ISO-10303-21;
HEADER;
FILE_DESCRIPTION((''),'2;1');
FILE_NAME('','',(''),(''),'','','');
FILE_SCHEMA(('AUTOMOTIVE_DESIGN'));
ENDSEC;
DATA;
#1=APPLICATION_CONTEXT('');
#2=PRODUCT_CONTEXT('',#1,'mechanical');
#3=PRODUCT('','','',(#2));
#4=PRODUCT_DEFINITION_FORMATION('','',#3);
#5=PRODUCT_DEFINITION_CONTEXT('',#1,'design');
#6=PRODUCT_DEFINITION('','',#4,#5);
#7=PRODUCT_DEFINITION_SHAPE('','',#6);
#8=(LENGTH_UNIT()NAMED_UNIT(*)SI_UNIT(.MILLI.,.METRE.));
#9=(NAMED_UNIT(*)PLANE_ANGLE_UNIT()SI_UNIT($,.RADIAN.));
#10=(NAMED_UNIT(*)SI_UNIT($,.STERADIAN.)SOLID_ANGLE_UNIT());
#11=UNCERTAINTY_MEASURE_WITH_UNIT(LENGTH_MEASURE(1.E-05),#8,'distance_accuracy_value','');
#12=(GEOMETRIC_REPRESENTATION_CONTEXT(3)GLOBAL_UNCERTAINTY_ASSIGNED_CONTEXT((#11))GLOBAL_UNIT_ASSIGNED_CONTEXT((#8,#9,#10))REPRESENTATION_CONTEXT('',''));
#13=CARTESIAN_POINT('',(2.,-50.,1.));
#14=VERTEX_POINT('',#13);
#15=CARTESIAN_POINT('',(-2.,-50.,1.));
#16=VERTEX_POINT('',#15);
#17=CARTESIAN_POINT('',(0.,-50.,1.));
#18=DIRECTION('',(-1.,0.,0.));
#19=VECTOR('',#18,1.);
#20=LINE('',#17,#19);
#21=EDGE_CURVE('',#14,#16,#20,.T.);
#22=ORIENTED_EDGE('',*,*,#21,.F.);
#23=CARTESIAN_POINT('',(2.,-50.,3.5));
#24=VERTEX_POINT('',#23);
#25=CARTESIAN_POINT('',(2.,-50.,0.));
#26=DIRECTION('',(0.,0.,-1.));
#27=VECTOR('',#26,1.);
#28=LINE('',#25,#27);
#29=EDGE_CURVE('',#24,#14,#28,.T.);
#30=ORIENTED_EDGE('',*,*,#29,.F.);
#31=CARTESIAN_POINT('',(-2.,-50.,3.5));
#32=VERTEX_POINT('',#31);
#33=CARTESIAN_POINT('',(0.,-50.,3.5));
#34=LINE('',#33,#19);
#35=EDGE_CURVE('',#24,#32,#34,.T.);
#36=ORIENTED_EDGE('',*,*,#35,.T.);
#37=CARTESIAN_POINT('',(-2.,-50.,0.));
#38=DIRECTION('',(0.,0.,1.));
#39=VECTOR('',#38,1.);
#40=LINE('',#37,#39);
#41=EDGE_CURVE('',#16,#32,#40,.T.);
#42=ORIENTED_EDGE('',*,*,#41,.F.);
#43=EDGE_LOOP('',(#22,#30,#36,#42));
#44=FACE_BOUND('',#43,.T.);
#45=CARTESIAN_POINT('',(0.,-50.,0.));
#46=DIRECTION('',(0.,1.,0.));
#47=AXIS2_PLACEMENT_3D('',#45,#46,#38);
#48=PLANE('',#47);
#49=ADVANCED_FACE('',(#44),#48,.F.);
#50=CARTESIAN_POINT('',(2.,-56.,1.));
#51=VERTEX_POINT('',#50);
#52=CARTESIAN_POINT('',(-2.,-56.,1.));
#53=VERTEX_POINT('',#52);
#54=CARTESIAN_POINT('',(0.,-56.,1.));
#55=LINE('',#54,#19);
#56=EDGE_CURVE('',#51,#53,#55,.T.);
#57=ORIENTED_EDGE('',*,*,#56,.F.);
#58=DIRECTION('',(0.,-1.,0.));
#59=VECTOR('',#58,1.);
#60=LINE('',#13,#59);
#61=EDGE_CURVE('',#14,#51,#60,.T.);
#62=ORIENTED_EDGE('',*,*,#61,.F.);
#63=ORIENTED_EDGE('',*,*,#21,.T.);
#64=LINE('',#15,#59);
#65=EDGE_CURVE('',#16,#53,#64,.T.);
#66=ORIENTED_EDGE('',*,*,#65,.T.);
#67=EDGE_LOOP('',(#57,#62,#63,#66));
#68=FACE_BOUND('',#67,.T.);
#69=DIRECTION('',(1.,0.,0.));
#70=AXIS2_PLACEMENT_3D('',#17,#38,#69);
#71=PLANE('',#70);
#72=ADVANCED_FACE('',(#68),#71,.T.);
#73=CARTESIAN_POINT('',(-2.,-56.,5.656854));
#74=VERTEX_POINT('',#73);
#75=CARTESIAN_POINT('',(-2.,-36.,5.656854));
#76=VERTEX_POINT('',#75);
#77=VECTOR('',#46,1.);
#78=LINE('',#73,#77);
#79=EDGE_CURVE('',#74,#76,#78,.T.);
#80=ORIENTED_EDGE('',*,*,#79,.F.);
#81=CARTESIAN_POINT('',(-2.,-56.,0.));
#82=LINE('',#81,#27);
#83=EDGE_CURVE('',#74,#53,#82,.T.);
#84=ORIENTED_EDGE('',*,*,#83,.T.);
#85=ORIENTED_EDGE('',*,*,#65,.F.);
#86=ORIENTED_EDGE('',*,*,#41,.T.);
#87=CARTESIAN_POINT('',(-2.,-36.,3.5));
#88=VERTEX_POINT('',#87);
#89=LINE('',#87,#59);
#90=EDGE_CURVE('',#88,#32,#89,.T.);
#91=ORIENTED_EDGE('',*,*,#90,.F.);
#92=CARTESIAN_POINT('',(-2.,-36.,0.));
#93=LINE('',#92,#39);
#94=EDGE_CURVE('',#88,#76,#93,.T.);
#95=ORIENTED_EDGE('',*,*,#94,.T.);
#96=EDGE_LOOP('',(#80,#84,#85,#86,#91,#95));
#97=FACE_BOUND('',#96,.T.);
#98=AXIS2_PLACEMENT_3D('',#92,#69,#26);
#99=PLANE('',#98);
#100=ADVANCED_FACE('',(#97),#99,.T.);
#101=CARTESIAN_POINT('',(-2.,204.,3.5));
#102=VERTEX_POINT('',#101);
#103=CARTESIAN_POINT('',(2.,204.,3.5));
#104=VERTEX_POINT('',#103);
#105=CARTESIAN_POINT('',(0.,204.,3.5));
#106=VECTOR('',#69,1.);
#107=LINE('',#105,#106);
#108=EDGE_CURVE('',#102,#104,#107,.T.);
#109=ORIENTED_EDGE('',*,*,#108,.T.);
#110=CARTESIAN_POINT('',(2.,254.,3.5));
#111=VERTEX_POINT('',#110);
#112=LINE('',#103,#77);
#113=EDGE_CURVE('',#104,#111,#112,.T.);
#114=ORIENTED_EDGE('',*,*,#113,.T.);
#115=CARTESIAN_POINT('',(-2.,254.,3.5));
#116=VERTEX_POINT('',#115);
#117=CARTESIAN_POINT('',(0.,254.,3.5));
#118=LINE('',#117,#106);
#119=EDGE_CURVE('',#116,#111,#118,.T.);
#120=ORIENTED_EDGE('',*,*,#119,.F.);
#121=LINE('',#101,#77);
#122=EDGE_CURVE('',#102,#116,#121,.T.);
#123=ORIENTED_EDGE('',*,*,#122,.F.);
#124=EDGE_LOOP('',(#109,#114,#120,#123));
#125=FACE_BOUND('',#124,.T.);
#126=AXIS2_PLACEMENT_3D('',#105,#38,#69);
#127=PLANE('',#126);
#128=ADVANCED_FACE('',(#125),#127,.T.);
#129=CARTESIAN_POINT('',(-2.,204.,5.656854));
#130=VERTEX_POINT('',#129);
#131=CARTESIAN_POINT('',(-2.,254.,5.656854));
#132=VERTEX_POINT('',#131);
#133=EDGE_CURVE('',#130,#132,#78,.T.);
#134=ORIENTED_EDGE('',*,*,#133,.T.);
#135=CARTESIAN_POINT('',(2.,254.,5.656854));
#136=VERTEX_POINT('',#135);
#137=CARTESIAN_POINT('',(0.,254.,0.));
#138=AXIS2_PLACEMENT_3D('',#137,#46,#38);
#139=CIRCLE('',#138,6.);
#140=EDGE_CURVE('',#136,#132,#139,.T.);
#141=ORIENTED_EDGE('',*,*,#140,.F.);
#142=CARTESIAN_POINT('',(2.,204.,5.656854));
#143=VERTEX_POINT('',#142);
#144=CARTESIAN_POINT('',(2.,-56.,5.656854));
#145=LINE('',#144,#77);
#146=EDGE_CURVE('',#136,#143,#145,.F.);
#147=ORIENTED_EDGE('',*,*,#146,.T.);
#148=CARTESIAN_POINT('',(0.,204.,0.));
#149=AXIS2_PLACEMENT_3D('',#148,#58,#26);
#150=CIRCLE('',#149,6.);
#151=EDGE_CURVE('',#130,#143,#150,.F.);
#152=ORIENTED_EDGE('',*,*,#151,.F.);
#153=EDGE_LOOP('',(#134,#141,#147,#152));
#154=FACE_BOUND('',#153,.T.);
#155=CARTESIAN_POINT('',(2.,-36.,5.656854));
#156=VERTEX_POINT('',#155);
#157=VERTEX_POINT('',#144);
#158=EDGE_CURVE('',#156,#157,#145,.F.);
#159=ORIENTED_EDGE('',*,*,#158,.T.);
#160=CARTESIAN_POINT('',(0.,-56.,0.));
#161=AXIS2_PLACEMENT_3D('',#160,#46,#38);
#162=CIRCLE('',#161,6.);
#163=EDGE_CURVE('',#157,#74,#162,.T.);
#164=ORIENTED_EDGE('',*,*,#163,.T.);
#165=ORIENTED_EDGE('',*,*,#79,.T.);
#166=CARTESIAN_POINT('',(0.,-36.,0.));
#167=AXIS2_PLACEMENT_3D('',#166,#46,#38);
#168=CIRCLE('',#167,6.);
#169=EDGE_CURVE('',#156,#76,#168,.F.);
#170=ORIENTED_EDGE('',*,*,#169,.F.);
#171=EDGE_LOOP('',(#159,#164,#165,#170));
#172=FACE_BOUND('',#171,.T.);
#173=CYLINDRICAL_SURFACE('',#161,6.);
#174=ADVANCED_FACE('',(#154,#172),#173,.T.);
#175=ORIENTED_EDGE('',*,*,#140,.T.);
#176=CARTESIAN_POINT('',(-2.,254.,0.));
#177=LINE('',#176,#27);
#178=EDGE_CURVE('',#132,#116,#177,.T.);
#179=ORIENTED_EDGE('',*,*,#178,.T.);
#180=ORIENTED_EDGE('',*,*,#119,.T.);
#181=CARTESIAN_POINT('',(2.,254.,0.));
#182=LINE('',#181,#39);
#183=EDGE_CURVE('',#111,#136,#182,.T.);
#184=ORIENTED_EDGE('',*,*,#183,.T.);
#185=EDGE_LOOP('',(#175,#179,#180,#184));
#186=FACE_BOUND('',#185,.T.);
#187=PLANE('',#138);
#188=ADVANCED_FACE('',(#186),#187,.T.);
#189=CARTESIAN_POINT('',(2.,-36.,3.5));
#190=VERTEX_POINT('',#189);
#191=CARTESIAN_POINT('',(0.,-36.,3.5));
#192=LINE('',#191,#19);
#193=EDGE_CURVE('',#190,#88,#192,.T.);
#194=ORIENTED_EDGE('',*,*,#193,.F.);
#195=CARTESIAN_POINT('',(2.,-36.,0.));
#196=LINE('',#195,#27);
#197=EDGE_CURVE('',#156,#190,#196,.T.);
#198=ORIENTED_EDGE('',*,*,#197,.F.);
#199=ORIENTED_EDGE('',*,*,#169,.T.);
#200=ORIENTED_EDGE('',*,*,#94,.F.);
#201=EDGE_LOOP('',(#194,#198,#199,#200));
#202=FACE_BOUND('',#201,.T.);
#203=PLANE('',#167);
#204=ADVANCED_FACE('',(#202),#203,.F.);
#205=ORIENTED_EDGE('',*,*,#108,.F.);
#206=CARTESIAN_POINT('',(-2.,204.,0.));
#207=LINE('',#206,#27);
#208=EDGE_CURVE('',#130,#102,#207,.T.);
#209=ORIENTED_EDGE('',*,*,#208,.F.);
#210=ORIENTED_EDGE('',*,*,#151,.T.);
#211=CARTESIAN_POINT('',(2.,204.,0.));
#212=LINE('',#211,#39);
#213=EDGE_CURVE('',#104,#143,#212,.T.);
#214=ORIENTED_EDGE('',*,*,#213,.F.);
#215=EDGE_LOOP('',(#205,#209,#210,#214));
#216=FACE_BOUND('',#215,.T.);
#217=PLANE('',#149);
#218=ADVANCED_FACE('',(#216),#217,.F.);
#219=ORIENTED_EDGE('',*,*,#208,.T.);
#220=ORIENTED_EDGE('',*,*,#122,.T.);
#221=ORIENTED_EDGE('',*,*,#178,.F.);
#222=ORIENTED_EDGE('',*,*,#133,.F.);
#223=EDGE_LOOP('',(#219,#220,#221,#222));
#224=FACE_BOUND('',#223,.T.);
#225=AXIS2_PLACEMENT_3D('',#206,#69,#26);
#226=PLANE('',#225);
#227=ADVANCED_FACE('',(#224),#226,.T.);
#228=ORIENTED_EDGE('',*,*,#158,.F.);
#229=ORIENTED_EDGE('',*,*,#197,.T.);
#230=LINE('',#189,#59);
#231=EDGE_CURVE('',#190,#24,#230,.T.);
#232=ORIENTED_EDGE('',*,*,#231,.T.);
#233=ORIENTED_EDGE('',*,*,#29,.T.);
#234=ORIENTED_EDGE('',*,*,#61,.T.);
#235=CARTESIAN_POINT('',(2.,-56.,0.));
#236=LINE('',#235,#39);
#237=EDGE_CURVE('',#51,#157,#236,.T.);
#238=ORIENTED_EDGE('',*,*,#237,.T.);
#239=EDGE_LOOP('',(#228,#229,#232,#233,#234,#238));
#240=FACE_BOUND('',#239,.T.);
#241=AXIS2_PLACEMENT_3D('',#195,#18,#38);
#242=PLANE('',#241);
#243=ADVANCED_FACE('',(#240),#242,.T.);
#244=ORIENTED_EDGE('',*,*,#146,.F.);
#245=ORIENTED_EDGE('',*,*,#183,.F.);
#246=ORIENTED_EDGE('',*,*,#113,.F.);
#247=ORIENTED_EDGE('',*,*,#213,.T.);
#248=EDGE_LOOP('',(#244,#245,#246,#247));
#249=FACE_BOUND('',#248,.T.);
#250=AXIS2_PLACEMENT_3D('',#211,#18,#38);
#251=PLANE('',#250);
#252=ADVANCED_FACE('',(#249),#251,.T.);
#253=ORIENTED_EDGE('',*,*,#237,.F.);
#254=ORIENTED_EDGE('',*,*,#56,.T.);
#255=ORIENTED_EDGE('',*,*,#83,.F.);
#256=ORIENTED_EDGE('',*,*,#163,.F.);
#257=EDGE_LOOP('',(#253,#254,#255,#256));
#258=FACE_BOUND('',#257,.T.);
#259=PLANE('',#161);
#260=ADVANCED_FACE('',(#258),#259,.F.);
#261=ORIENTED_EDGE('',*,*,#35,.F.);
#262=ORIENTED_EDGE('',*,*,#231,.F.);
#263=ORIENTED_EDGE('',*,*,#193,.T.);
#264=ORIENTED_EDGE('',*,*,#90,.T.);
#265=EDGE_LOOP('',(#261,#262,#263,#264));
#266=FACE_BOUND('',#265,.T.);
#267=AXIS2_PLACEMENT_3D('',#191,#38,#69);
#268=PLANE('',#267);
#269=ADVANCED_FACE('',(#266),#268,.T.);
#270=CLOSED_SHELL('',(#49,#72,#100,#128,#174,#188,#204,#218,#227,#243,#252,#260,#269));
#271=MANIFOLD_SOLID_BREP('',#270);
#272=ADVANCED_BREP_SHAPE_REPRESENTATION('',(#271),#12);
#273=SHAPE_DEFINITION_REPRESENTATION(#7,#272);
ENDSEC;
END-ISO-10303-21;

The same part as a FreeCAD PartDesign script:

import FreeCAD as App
import Part
import Sketcher


def add_polygon(sketch, points):
    """Adds a closed chain of lines whose ends are joined by coincident constraints."""
    first, n = sketch.GeometryCount, len(points)
    for a, b in zip(points, points[1:] + points[:1]):
        sketch.addGeometry(Part.LineSegment(App.Vector(*a, 0), App.Vector(*b, 0)), False)
    for i in range(n):
        sketch.addConstraint(Sketcher.Constraint("Coincident", first + i, 2, first + (i + 1) % n, 1))

doc = App.newDocument("Part")
params = doc.addObject("Spreadsheet::Sheet", "Params")
for row, (alias, value) in enumerate([
    ("sketch1_diameter", "12 mm"),
    ("pad1_length", "254 mm"),
    ("pad1_length2", "56 mm"),
    ("sketch2_width", "4 mm"),
    ("sketch2_height", "5 mm"),
    ("pocket1_length", "20 mm"),
    ("pocket1_length2", "0.0001 mm"),
    ("sketch3_width", "4 mm"),
    ("sketch3_height", "5 mm"),
    ("pocket2_length", "50 mm"),
    ("sketch4_width", "4 mm"),
    ("sketch4_height", "10 mm"),
    ("pocket3_length", "6 mm"),
], start=1):
    params.set(f"A{row}", alias)
    params.set(f"B{row}", "=" + value)
    params.setAlias(f"B{row}", alias)

body = doc.addObject("PartDesign::Body", "Body")

sketch1 = body.newObject("Sketcher::SketchObject", "Sketch")
sketch1.AttachmentSupport = (doc.getObject("XZ_Plane"), [""])
sketch1.MapMode = "FlatFace"
sketch1.addGeometry(Part.Circle(App.Vector(0, 0, 0), App.Vector(0, 0, 1), 6), False)
sketch1.addConstraint(Sketcher.Constraint("Coincident", 0, 3, -1, 1))
sketch1.addConstraint(Sketcher.Constraint("Diameter", 0, 12.0))
sketch1.setExpression("Constraints[1]", "Params.sketch1_diameter")
pad1 = body.newObject("PartDesign::Pad", "Pad")
pad1.Profile = sketch1
pad1.Type = "TwoLengths"
pad1.setExpression("Length", "Params.pad1_length")
pad1.setExpression("Length2", "Params.pad1_length2")
pad1.Reversed = True

sketch2 = body.newObject("Sketcher::SketchObject", "Sketch001")
sketch2.AttachmentSupport = (doc.getObject("XZ_Plane"), [""])
sketch2.MapMode = "FlatFace"
sketch2.AttachmentOffset = App.Placement(App.Vector(0, 0, 56), App.Rotation())
add_polygon(sketch2, [(-2, 3.5), (-2, 8.5), (2, 8.5), (2, 3.5)])
sketch2.addConstraint(Sketcher.Constraint("Vertical", 0))
sketch2.addConstraint(Sketcher.Constraint("Horizontal", 1))
sketch2.addConstraint(Sketcher.Constraint("Vertical", 2))
sketch2.addConstraint(Sketcher.Constraint("Horizontal", 3))
sketch2.addConstraint(Sketcher.Constraint("DistanceX", 1, 1, 1, 2, 4.0))
sketch2.addConstraint(Sketcher.Constraint("DistanceY", 0, 1, 0, 2, 5.0))
sketch2.addConstraint(Sketcher.Constraint("DistanceX", 0, 2, -1, 1, 2.0))
sketch2.addConstraint(Sketcher.Constraint("DistanceY", -1, 1, 0, 2, 8.5))
sketch2.setExpression("Constraints[8]", "Params.sketch2_width")
sketch2.setExpression("Constraints[9]", "Params.sketch2_height")
pocket1 = body.newObject("PartDesign::Pocket", "Pocket")
pocket1.Profile = sketch2
pocket1.Type = "TwoLengths"
pocket1.setExpression("Length", "Params.pocket1_length")
pocket1.setExpression("Length2", "Params.pocket1_length2")

sketch3 = body.newObject("Sketcher::SketchObject", "Sketch002")
sketch3.AttachmentSupport = (doc.getObject("XZ_Plane"), [""])
sketch3.MapMode = "FlatFace"
sketch3.AttachmentOffset = App.Placement(App.Vector(0, 0, -254), App.Rotation())
add_polygon(sketch3, [(-2, 3.5), (-2, 8.5), (2, 8.5), (2, 3.5)])
sketch3.addConstraint(Sketcher.Constraint("Vertical", 0))
sketch3.addConstraint(Sketcher.Constraint("Horizontal", 1))
sketch3.addConstraint(Sketcher.Constraint("Vertical", 2))
sketch3.addConstraint(Sketcher.Constraint("Horizontal", 3))
sketch3.addConstraint(Sketcher.Constraint("DistanceX", 1, 1, 1, 2, 4.0))
sketch3.addConstraint(Sketcher.Constraint("DistanceY", 0, 1, 0, 2, 5.0))
sketch3.addConstraint(Sketcher.Constraint("DistanceX", 0, 2, -1, 1, 2.0))
sketch3.addConstraint(Sketcher.Constraint("DistanceY", -1, 1, 0, 2, 8.5))
sketch3.setExpression("Constraints[8]", "Params.sketch3_width")
sketch3.setExpression("Constraints[9]", "Params.sketch3_height")
pocket2 = body.newObject("PartDesign::Pocket", "Pocket001")
pocket2.Profile = sketch3
pocket2.setExpression("Length", "Params.pocket2_length")
pocket2.Reversed = True

sketch4 = body.newObject("Sketcher::SketchObject", "Sketch003")
sketch4.AttachmentSupport = (doc.getObject("XZ_Plane"), [""])
sketch4.MapMode = "FlatFace"
sketch4.AttachmentOffset = App.Placement(App.Vector(0, 0, 56), App.Rotation())
add_polygon(sketch4, [(-2, 1), (-2, 11), (2, 11), (2, 1)])
sketch4.addConstraint(Sketcher.Constraint("Vertical", 0))
sketch4.addConstraint(Sketcher.Constraint("Horizontal", 1))
sketch4.addConstraint(Sketcher.Constraint("Vertical", 2))
sketch4.addConstraint(Sketcher.Constraint("Horizontal", 3))
sketch4.addConstraint(Sketcher.Constraint("DistanceX", 1, 1, 1, 2, 4.0))
sketch4.addConstraint(Sketcher.Constraint("DistanceY", 0, 1, 0, 2, 10.0))
sketch4.addConstraint(Sketcher.Constraint("DistanceX", 0, 2, -1, 1, 2.0))
sketch4.addConstraint(Sketcher.Constraint("DistanceY", -1, 1, 0, 2, 11.0))
sketch4.setExpression("Constraints[8]", "Params.sketch4_width")
sketch4.setExpression("Constraints[9]", "Params.sketch4_height")
pocket3 = body.newObject("PartDesign::Pocket", "Pocket002")
pocket3.Profile = sketch4
pocket3.setExpression("Length", "Params.pocket3_length")

doc.recompute()
